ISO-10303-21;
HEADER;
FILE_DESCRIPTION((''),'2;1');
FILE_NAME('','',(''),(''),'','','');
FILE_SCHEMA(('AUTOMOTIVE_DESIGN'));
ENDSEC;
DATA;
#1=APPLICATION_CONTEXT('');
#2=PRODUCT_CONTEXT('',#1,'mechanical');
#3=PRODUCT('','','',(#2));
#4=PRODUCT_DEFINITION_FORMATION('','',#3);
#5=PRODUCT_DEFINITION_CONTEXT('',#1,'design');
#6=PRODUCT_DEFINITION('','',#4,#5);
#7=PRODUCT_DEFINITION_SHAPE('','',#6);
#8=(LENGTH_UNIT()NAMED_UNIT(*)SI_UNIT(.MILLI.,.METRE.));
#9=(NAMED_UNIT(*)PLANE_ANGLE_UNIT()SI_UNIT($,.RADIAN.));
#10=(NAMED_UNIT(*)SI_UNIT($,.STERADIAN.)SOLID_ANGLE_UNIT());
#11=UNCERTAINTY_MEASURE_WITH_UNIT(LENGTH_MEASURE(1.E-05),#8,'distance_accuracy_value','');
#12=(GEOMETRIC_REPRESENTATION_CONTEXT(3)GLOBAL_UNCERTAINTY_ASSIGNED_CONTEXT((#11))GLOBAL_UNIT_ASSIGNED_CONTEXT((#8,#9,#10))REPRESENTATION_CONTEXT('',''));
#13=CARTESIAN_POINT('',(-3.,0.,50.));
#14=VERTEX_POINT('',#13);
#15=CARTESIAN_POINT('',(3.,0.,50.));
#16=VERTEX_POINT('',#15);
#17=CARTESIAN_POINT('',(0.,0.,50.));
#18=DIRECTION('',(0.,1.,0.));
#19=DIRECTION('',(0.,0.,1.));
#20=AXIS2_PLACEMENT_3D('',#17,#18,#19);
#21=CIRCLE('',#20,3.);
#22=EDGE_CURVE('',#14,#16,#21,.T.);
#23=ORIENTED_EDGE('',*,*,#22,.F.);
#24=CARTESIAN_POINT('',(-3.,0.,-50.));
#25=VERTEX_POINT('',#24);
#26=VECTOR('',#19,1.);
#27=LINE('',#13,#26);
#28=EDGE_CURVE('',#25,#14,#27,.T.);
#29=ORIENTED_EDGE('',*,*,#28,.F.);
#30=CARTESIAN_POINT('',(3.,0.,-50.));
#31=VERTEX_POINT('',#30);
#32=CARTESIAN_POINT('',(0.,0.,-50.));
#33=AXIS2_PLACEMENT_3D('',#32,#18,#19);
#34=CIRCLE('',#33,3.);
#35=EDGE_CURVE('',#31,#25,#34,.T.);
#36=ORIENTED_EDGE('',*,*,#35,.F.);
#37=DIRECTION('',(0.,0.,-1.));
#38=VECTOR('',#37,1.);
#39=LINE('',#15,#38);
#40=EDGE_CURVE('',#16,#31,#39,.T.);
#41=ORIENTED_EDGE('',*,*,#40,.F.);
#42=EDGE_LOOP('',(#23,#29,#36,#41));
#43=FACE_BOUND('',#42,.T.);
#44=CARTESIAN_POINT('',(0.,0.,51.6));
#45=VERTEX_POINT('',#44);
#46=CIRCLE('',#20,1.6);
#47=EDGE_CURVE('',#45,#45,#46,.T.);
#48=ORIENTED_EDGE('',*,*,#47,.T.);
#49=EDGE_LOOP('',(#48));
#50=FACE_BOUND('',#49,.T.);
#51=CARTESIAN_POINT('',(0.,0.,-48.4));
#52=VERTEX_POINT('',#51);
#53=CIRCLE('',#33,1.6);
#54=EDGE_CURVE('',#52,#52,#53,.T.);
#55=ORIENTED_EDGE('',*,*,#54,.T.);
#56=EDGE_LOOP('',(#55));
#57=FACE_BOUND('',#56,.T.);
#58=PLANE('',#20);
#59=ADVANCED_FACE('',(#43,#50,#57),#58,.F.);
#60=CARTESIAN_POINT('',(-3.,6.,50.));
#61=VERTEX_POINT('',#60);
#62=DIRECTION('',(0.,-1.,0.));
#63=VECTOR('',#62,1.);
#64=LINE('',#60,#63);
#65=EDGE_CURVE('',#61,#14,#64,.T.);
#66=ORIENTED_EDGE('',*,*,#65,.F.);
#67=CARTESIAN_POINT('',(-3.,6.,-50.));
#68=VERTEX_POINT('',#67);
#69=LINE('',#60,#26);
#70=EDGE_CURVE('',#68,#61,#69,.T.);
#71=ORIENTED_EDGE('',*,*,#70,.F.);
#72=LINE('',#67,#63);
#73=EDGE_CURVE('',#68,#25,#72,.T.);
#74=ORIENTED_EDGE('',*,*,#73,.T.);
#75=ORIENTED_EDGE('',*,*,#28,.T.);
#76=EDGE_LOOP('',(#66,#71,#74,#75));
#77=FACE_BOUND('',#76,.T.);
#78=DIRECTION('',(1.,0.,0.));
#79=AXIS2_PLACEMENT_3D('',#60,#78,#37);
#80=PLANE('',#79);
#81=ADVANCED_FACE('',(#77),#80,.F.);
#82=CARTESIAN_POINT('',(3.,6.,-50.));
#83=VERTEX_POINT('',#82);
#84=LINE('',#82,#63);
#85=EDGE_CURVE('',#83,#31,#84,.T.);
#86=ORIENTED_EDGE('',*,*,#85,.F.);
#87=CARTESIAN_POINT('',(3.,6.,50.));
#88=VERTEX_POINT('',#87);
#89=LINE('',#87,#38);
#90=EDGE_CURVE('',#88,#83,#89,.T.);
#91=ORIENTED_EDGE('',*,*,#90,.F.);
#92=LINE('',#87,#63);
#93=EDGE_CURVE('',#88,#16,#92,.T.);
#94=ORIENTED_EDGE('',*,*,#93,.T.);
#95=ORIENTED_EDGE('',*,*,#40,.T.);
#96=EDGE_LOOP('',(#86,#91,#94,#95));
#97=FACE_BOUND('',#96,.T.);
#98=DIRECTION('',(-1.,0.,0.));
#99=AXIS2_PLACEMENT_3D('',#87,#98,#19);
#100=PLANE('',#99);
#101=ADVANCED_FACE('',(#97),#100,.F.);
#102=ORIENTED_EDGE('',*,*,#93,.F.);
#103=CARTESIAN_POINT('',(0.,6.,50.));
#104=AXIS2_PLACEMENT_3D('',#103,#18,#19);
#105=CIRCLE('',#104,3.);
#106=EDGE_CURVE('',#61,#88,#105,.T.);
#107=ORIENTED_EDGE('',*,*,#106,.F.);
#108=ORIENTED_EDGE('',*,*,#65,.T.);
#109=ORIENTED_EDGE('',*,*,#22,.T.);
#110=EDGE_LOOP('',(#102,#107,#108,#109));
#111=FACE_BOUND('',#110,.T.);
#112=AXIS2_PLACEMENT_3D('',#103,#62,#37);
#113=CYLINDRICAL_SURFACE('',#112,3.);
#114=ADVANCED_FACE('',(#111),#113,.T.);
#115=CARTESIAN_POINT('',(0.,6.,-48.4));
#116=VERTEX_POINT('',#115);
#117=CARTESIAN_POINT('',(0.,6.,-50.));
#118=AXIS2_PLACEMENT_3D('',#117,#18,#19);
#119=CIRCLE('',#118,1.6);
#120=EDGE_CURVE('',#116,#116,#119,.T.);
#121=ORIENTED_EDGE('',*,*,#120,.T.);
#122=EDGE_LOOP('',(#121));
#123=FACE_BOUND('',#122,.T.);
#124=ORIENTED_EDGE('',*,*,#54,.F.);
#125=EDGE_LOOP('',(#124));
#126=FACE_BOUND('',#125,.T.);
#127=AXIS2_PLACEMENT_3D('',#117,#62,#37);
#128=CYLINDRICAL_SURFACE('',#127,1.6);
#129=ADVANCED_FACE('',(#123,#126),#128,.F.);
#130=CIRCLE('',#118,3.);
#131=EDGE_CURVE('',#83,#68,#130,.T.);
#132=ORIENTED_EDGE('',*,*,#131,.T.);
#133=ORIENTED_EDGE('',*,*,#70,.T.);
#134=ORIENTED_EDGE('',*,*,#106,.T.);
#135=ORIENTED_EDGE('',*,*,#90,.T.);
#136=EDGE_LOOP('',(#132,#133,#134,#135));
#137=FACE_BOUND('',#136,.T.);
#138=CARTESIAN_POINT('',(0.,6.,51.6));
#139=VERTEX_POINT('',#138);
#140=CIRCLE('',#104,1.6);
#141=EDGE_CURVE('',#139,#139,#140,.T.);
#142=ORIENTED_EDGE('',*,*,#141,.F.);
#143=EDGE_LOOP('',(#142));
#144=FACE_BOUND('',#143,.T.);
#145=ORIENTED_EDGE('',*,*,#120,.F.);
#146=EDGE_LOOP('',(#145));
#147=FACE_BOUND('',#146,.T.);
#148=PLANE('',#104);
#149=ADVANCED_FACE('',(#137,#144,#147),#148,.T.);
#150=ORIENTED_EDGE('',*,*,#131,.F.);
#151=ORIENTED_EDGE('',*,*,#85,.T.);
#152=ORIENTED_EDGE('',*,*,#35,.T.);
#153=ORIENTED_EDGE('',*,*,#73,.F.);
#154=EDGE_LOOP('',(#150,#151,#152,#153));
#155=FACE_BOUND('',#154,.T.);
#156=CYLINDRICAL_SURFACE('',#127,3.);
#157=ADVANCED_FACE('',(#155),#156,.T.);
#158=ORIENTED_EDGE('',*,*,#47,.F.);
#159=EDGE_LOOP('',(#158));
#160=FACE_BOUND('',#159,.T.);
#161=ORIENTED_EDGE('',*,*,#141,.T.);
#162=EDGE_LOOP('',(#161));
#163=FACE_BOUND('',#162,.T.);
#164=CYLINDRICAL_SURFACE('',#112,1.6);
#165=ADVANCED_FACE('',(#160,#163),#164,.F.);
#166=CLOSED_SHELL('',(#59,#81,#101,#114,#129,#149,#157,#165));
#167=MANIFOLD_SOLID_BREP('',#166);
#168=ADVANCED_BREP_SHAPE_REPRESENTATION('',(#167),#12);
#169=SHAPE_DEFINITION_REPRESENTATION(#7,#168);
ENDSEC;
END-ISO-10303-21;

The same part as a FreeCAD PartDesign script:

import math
import FreeCAD as App
import Part
import Sketcher
from FreeCAD import Vector
Q = App.Units.Quantity

doc = App.newDocument("Part")
params = doc.addObject("Spreadsheet::Sheet", "Params")
for row, (alias, value) in enumerate([
    ("sketch1_radius", "3 mm"),
    ("sketch1_diameter", "3.2 mm"),
    ("sketch1_height", "100 mm"),
    ("pad1_length", "6 mm"),
], start=1):
    params.set(f"A{row}", alias)
    params.set(f"B{row}", "=" + value)
    params.setAlias(f"B{row}", alias)

body = doc.addObject("PartDesign::Body", "Body")

sketch1 = body.newObject("Sketcher::SketchObject", "Sketch")
sketch1.AttachmentSupport = (doc.getObject("XZ_Plane"), [""])
sketch1.MapMode = "FlatFace"
sketch1.addGeometry([
    Part.LineSegment(Vector(-3, -50, 0), Vector(-3, 50, 0)),
    Part.ArcOfCircle(Part.Circle(Vector(0, 50, 0), Vector(0, 0, 1), 3), math.radians(0), math.radians(180)),
    Part.LineSegment(Vector(3, 50, 0), Vector(3, -50, 0)),
    Part.ArcOfCircle(Part.Circle(Vector(0, -50, 0), Vector(0, 0, 1), 3), math.radians(180), math.radians(360)),
    Part.Circle(Vector(0, 50, 0), Vector(0, 0, 1), 1.6),
    Part.Circle(Vector(0, -50, 0), Vector(0, 0, 1), 1.6),
], False)
sketch1.addConstraint([
    Sketcher.Constraint("Tangent", 0, 2, 1, 2),
    Sketcher.Constraint("Tangent", 1, 1, 2, 1),
    Sketcher.Constraint("Tangent", 2, 2, 3, 2),
    Sketcher.Constraint("Tangent", 3, 1, 0, 1),
    Sketcher.Constraint("Vertical", 0),
    Sketcher.Constraint("Vertical", 2),
    Sketcher.Constraint("Coincident", 4, 3, 1, 3),
    Sketcher.Constraint("Coincident", 5, 3, 3, 3),
    Sketcher.Constraint("Equal", 4, 5),
    Sketcher.Constraint("Symmetric", 1, 3, 3, 3, -1, 1),
    Sketcher.Constraint("Radius", 1, Q("3 mm")),
    Sketcher.Constraint("Diameter", 4, Q("3.2 mm")),
    Sketcher.Constraint("DistanceY", 0, 1, 0, 2, Q("100 mm")),
])
sketch1.setExpression("Constraints[10]", "Params.sketch1_radius")
sketch1.setExpression("Constraints[11]", "Params.sketch1_diameter")
sketch1.setExpression("Constraints[12]", "Params.sketch1_height")
pad1 = body.newObject("PartDesign::Pad", "Pad")
pad1.Profile = sketch1
pad1.setExpression("Length", "Params.pad1_length")
pad1.Reversed = True

doc.recompute()
